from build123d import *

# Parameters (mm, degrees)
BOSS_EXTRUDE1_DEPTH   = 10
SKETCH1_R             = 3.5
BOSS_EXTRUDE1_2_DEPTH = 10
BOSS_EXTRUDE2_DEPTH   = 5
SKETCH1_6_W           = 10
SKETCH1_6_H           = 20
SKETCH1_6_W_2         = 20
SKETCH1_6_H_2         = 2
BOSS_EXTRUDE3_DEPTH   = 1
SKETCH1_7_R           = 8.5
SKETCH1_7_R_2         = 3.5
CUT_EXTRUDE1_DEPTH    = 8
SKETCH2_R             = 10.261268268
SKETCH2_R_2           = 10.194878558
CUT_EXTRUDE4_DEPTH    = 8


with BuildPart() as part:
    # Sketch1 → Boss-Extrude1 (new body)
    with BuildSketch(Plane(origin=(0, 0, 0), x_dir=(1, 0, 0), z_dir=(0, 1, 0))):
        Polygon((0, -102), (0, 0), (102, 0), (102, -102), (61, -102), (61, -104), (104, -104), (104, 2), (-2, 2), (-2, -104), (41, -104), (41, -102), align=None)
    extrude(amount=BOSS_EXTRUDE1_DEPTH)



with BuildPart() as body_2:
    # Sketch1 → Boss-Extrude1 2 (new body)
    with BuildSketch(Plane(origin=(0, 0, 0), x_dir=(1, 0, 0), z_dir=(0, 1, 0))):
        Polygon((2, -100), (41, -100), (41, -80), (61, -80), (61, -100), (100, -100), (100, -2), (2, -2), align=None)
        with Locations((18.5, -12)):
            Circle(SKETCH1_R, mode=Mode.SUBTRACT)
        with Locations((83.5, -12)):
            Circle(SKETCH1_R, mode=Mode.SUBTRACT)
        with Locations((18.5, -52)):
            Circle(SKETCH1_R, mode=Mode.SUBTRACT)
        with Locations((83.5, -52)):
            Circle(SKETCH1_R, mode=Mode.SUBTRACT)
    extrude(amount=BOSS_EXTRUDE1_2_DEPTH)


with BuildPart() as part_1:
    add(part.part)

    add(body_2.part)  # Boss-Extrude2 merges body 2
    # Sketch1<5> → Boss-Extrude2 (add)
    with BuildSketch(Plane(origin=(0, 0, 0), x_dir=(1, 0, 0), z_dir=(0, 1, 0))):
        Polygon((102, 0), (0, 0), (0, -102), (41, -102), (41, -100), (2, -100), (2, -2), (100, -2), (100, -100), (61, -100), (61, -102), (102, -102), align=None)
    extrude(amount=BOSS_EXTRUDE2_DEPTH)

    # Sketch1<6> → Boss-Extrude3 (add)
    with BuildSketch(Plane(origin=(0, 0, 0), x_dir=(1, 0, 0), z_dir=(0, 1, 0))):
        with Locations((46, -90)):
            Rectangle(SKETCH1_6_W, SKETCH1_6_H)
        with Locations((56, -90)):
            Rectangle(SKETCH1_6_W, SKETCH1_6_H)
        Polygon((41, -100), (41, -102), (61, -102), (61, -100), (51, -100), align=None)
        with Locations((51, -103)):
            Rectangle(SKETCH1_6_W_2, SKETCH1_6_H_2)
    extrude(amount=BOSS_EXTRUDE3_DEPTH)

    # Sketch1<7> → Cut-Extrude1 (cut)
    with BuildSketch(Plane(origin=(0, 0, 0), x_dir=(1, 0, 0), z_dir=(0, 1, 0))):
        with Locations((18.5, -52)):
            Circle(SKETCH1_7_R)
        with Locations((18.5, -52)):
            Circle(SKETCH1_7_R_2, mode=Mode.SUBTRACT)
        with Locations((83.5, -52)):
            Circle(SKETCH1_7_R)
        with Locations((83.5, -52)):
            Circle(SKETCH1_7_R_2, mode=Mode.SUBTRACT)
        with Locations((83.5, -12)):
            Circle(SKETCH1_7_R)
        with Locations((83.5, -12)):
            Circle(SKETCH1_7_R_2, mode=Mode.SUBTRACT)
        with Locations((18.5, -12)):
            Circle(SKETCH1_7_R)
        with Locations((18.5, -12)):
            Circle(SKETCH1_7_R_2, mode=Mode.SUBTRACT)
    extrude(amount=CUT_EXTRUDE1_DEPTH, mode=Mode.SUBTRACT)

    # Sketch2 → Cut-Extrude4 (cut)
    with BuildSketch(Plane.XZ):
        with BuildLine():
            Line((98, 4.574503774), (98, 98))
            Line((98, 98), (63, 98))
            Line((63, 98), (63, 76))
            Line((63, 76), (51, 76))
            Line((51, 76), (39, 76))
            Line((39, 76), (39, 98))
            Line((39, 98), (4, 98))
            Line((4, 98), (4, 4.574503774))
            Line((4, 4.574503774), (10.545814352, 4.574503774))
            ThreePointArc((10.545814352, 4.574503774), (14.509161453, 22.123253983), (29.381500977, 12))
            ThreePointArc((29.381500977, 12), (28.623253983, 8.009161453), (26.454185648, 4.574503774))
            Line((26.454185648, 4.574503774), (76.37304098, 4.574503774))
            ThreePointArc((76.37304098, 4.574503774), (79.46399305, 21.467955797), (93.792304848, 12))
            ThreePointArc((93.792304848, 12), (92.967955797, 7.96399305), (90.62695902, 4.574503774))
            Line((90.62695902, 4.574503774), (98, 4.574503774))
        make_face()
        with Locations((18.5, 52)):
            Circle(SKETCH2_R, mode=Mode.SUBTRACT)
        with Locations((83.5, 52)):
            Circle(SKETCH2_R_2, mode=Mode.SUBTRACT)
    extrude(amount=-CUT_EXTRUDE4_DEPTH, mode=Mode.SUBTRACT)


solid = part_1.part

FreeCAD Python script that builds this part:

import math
import FreeCAD as App
import Part
import Sketcher

V = App.Vector


def add_polygon(sketch, points):
    """Adds a closed chain of lines whose ends are joined by coincident constraints."""
    first, n = sketch.GeometryCount, len(points)
    for a, b in zip(points, points[1:] + points[:1]):
        sketch.addGeometry(Part.LineSegment(App.Vector(*a, 0), App.Vector(*b, 0)), False)
    for i in range(n):
        sketch.addConstraint(Sketcher.Constraint("Coincident", first + i, 2, first + (i + 1) % n, 1))

doc = App.newDocument("Part")
params = doc.addObject("Spreadsheet::Sheet", "Params")
for row, (alias, value) in enumerate([
    ("sketch1_width", "102 mm"),
    ("sketch1_width2", "41 mm"),
    ("sketch1_width3", "43 mm"),
    ("sketch1_height", "2 mm"),
    ("pad1_length", "10 mm"),
    ("sketch2_diameter", "7 mm"),
    ("sketch2_width", "39 mm"),
    ("sketch2_width2", "20 mm"),
    ("pad2_length", "10 mm"),
    ("sketch3_width", "102 mm"),
    ("sketch3_width2", "41 mm"),
    ("sketch3_width3", "39 mm"),
    ("sketch3_height", "2 mm"),
    ("pad3_length", "5 mm"),
    ("sketch4_width", "20 mm"),
    ("sketch4_height", "24 mm"),
    ("pad4_length", "1 mm"),
    ("sketch5_diameter", "17 mm"),
    ("sketch5_diameter2", "7 mm"),
    ("pocket1_length", "8 mm"),
    ("sketch6_width", "35 mm"),
    ("sketch6_width2", "24 mm"),
    ("sketch6_height", "22 mm"),
    ("pocket2_length", "8 mm"),
], start=1):
    params.set(f"A{row}", alias)
    params.set(f"B{row}", "=" + value)
    params.setAlias(f"B{row}", alias)

body = doc.addObject("PartDesign::Body", "Body")

sketch1 = body.newObject("Sketcher::SketchObject", "Sketch")
sketch1.AttachmentSupport = (doc.getObject("XZ_Plane"), [""])
sketch1.MapMode = "FlatFace"
add_polygon(sketch1, [(0, 102), (0, 0), (102, 0), (102, 102), (61, 102), (61, 104), (104, 104), (104, -2), (-2, -2), (-2, 104), (41, 104), (41, 102)])
sketch1.addConstraint([
    Sketcher.Constraint("Vertical", 0),
    Sketcher.Constraint("Horizontal", 1),
    Sketcher.Constraint("Vertical", 2),
    Sketcher.Constraint("Horizontal", 3),
    Sketcher.Constraint("Vertical", 4),
    Sketcher.Constraint("Horizontal", 5),
    Sketcher.Constraint("Vertical", 6),
    Sketcher.Constraint("Horizontal", 7),
    Sketcher.Constraint("Vertical", 8),
    Sketcher.Constraint("Horizontal", 9),
    Sketcher.Constraint("Vertical", 10),
    Sketcher.Constraint("Horizontal", 11),
    Sketcher.Constraint("Coincident", 0, 2, -1, 1),
    Sketcher.Constraint("Horizontal", 5, 2, 8, 2),
    Sketcher.Constraint("Horizontal", 3, 2, 10, 2),
    Sketcher.Constraint("Equal", 5, 9),
    Sketcher.Constraint("Equal", 3, 11),
    Sketcher.Constraint("Equal", 1, 0),
    Sketcher.Constraint("Equal", 7, 6),
    Sketcher.Constraint("DistanceX", 1, 1, 1, 2, 102.0),
    Sketcher.Constraint("DistanceX", 3, 2, 3, 1, 41.0),
    Sketcher.Constraint("DistanceX", 5, 1, 5, 2, 43.0),
    Sketcher.Constraint("DistanceY", 4, 1, 4, 2, 2.0),
])
sketch1.setExpression("Constraints[31]", "Params.sketch1_width")
sketch1.setExpression("Constraints[32]", "Params.sketch1_width2")
sketch1.setExpression("Constraints[33]", "Params.sketch1_width3")
sketch1.setExpression("Constraints[34]", "Params.sketch1_height")
pad1 = body.newObject("PartDesign::Pad", "Pad")
pad1.Profile = sketch1
pad1.setExpression("Length", "Params.pad1_length")
pad1.Reversed = True
body2 = doc.addObject("PartDesign::Body", "Body001")

sketch2 = body2.newObject("Sketcher::SketchObject", "Sketch001")
sketch2.AttachmentSupport = (doc.getObject("XZ_Plane001"), [""])
sketch2.MapMode = "FlatFace"
add_polygon(sketch2, [(2, 100), (41, 100), (41, 80), (61, 80), (61, 100), (100, 100), (100, 2), (2, 2)])
sketch2.addGeometry(Part.Circle(V(18.5, 52, 0), V(0, 0, 1), 3.5), False)
sketch2.addGeometry(Part.Circle(V(83.5, 52, 0), V(0, 0, 1), 3.5), False)
sketch2.addGeometry(Part.Circle(V(18.5, 12, 0), V(0, 0, 1), 3.5), False)
sketch2.addGeometry(Part.Circle(V(83.5, 12, 0), V(0, 0, 1), 3.5), False)
sketch2.addConstraint([
    Sketcher.Constraint("Horizontal", 0),
    Sketcher.Constraint("Vertical", 1),
    Sketcher.Constraint("Horizontal", 2),
    Sketcher.Constraint("Vertical", 3),
    Sketcher.Constraint("Horizontal", 4),
    Sketcher.Constraint("Vertical", 5),
    Sketcher.Constraint("Horizontal", 6),
    Sketcher.Constraint("Vertical", 7),
    Sketcher.Constraint("Equal", 8, 9),
    Sketcher.Constraint("Equal", 9, 10),
    Sketcher.Constraint("Equal", 10, 11),
    Sketcher.Constraint("Horizontal", 8, 3, 9, 3),
    Sketcher.Constraint("Horizontal", 10, 3, 11, 3),
    Sketcher.Constraint("Horizontal", 0, 2, 3, 2),
    Sketcher.Constraint("Vertical", 8, 3, 10, 3),
    Sketcher.Constraint("Vertical", 9, 3, 11, 3),
    Sketcher.Constraint("Equal", 0, 4),
    Sketcher.Constraint("Equal", 2, 1),
    Sketcher.Constraint("Equal", 6, 5),
    Sketcher.Constraint("Diameter", 8, 7.0),
    Sketcher.Constraint("DistanceX", 0, 1, 0, 2, 39.0),
    Sketcher.Constraint("DistanceX", 2, 1, 2, 2, 20.0),
    Sketcher.Constraint("DistanceY", -1, 1, 8, 3, 52.0),
    Sketcher.Constraint("DistanceY", -1, 1, 10, 3, 12.0),
    Sketcher.Constraint("DistanceX", -1, 1, 0, 2, 41.0),
    Sketcher.Constraint("DistanceY", -1, 1, 0, 2, 100.0),
    Sketcher.Constraint("DistanceX", 8, 3, 9, 3, 65.0),
    Sketcher.Constraint("DistanceX", -1, 1, 8, 3, 18.5),
])
sketch2.setExpression("Constraints[27]", "Params.sketch2_diameter")
sketch2.setExpression("Constraints[28]", "Params.sketch2_width")
sketch2.setExpression("Constraints[29]", "Params.sketch2_width2")
pad2 = body2.newObject("PartDesign::Pad", "Pad001")
pad2.Profile = sketch2
pad2.setExpression("Length", "Params.pad2_length")
pad2.Reversed = True
body.AllowCompound = True
doc.recompute()

boolean = body.newObject("PartDesign::Boolean", "Boolean")
boolean.Type = "Fuse"
boolean.addObjects([body2])

sketch3 = body.newObject("Sketcher::SketchObject", "Sketch002")
sketch3.AttachmentSupport = (doc.getObject("XZ_Plane"), [""])
sketch3.MapMode = "FlatFace"
add_polygon(sketch3, [(102, 0), (0, 0), (0, 102), (41, 102), (41, 100), (2, 100), (2, 2), (100, 2), (100, 100), (61, 100), (61, 102), (102, 102)])
sketch3.addConstraint([
    Sketcher.Constraint("Horizontal", 0),
    Sketcher.Constraint("Vertical", 1),
    Sketcher.Constraint("Horizontal", 2),
    Sketcher.Constraint("Vertical", 3),
    Sketcher.Constraint("Horizontal", 4),
    Sketcher.Constraint("Vertical", 5),
    Sketcher.Constraint("Horizontal", 6),
    Sketcher.Constraint("Vertical", 7),
    Sketcher.Constraint("Horizontal", 8),
    Sketcher.Constraint("Vertical", 9),
    Sketcher.Constraint("Horizontal", 10),
    Sketcher.Constraint("Vertical", 11),
    Sketcher.Constraint("Coincident", 0, 2, -1, 1),
    Sketcher.Constraint("Horizontal", 4, 2, 7, 2),
    Sketcher.Constraint("Horizontal", 2, 2, 9, 2),
    Sketcher.Constraint("Equal", 4, 8),
    Sketcher.Constraint("Equal", 2, 10),
    Sketcher.Constraint("Equal", 0, 1),
    Sketcher.Constraint("Equal", 6, 5),
    Sketcher.Constraint("DistanceX", 0, 2, 0, 1, 102.0),
    Sketcher.Constraint("DistanceX", 2, 1, 2, 2, 41.0),
    Sketcher.Constraint("DistanceX", 4, 2, 4, 1, 39.0),
    Sketcher.Constraint("DistanceY", 3, 2, 3, 1, 2.0),
])
sketch3.setExpression("Constraints[31]", "Params.sketch3_width")
sketch3.setExpression("Constraints[32]", "Params.sketch3_width2")
sketch3.setExpression("Constraints[33]", "Params.sketch3_width3")
sketch3.setExpression("Constraints[34]", "Params.sketch3_height")
pad3 = body.newObject("PartDesign::Pad", "Pad002")
pad3.Profile = sketch3
pad3.setExpression("Length", "Params.pad3_length")
pad3.Reversed = True

sketch4 = body.newObject("Sketcher::SketchObject", "Sketch003")
sketch4.AttachmentSupport = (doc.getObject("XZ_Plane"), [""])
sketch4.MapMode = "FlatFace"
add_polygon(sketch4, [(41, 80), (41, 104), (61, 104), (61, 80)])
sketch4.addConstraint([
    Sketcher.Constraint("Vertical", 0),
    Sketcher.Constraint("Horizontal", 1),
    Sketcher.Constraint("Vertical", 2),
    Sketcher.Constraint("Horizontal", 3),
    Sketcher.Constraint("DistanceX", 1, 1, 1, 2, 20.0),
    Sketcher.Constraint("DistanceY", 0, 1, 0, 2, 24.0),
    Sketcher.Constraint("DistanceX", -1, 1, 0, 2, 41.0),
    Sketcher.Constraint("DistanceY", -1, 1, 0, 2, 104.0),
])
sketch4.setExpression("Constraints[8]", "Params.sketch4_width")
sketch4.setExpression("Constraints[9]", "Params.sketch4_height")
pad4 = body.newObject("PartDesign::Pad", "Pad003")
pad4.Profile = sketch4
pad4.setExpression("Length", "Params.pad4_length")
pad4.Reversed = True

sketch5 = body.newObject("Sketcher::SketchObject", "Sketch004")
sketch5.AttachmentSupport = (doc.getObject("XZ_Plane"), [""])
sketch5.MapMode = "FlatFace"
sketch5.addGeometry([
    Part.Circle(V(18.5, 52, 0), V(0, 0, 1), 8.5),
    Part.Circle(V(18.5, 52, 0), V(0, 0, 1), 3.5),
    Part.Circle(V(83.5, 52, 0), V(0, 0, 1), 8.5),
    Part.Circle(V(83.5, 52, 0), V(0, 0, 1), 3.5),
    Part.Circle(V(83.5, 12, 0), V(0, 0, 1), 8.5),
    Part.Circle(V(83.5, 12, 0), V(0, 0, 1), 3.5),
    Part.Circle(V(18.5, 12, 0), V(0, 0, 1), 8.5),
    Part.Circle(V(18.5, 12, 0), V(0, 0, 1), 3.5),
], False)
sketch5.addConstraint([
    Sketcher.Constraint("Coincident", 1, 3, 0, 3),
    Sketcher.Constraint("Coincident", 3, 3, 2, 3),
    Sketcher.Constraint("Coincident", 5, 3, 4, 3),
    Sketcher.Constraint("Coincident", 7, 3, 6, 3),
    Sketcher.Constraint("Equal", 0, 2),
    Sketcher.Constraint("Equal", 1, 3),
    Sketcher.Constraint("Equal", 2, 4),
    Sketcher.Constraint("Equal", 3, 5),
    Sketcher.Constraint("Equal", 4, 6),
    Sketcher.Constraint("Equal", 5, 7),
    Sketcher.Constraint("Horizontal", 1, 3, 2, 3),
    Sketcher.Constraint("Horizontal", 5, 3, 6, 3),
    Sketcher.Constraint("Vertical", 3, 3, 4, 3),
    Sketcher.Constraint("Vertical", 1, 3, 6, 3),
    Sketcher.Constraint("Diameter", 0, 17.0),
    Sketcher.Constraint("Diameter", 1, 7.0),
    Sketcher.Constraint("DistanceY", -1, 1, 0, 3, 52.0),
    Sketcher.Constraint("DistanceY", -1, 1, 4, 3, 12.0),
    Sketcher.Constraint("DistanceX", 0, 3, 2, 3, 65.0),
    Sketcher.Constraint("DistanceX", -1, 1, 0, 3, 18.5),
])
sketch5.setExpression("Constraints[14]", "Params.sketch5_diameter")
sketch5.setExpression("Constraints[15]", "Params.sketch5_diameter2")
pocket1 = body.newObject("PartDesign::Pocket", "Pocket")
pocket1.Profile = sketch5
pocket1.setExpression("Length", "Params.pocket1_length")

sketch6 = body.newObject("Sketcher::SketchObject", "Sketch005")
sketch6.AttachmentSupport = (doc.getObject("XZ_Plane"), [""])
sketch6.MapMode = "FlatFace"
sketch6.addGeometry([
    Part.LineSegment(V(98, 5, 0), V(98, 98, 0)),
    Part.LineSegment(V(98, 98, 0), V(63, 98, 0)),
    Part.LineSegment(V(63, 98, 0), V(63, 76, 0)),
    Part.LineSegment(V(63, 76, 0), V(39, 76, 0)),
    Part.LineSegment(V(39, 76, 0), V(39, 98, 0)),
    Part.LineSegment(V(39, 98, 0), V(4, 98, 0)),
    Part.LineSegment(V(4, 98, 0), V(4, 5, 0)),
    Part.LineSegment(V(4, 5, 0), V(11, 5, 0)),
    Part.ArcOfCircle(Part.Circle(V(18, 12, 0), V(0, 0, 1), 11), math.radians(0), math.radians(223)),
    Part.ArcOfCircle(Part.Circle(V(18, 12, 0), V(0, 0, 1), 11), math.radians(-43), math.radians(0)),
    Part.LineSegment(V(26, 5, 0), V(76, 5, 0)),
    Part.ArcOfCircle(Part.Circle(V(84, 12, 0), V(0, 0, 1), 10), math.radians(0), math.radians(226)),
    Part.ArcOfCircle(Part.Circle(V(83, 12, 0), V(0, 0, 1), 10), math.radians(-46), math.radians(0)),
    Part.LineSegment(V(91, 5, 0), V(98, 5, 0)),
    Part.Circle(V(18, 52, 0), V(0, 0, 1), 10),
    Part.Circle(V(84, 52, 0), V(0, 0, 1), 10),
], False)
sketch6.addConstraint([
    Sketcher.Constraint("Coincident", 0, 2, 1, 1),
    Sketcher.Constraint("Coincident", 1, 2, 2, 1),
    Sketcher.Constraint("Coincident", 2, 2, 3, 1),
    Sketcher.Constraint("Coincident", 3, 2, 4, 1),
    Sketcher.Constraint("Coincident", 4, 2, 5, 1),
    Sketcher.Constraint("Coincident", 5, 2, 6, 1),
    Sketcher.Constraint("Coincident", 6, 2, 7, 1),
    Sketcher.Constraint("Coincident", 7, 2, 8, 2),
    Sketcher.Constraint("Tangent", 8, 1, 9, 2),
    Sketcher.Constraint("Coincident", 9, 1, 10, 1),
    Sketcher.Constraint("Coincident", 10, 2, 11, 2),
    Sketcher.Constraint("Tangent", 11, 1, 12, 2),
    Sketcher.Constraint("Coincident", 12, 1, 13, 1),
    Sketcher.Constraint("Coincident", 13, 2, 0, 1),
    Sketcher.Constraint("Vertical", 0),
    Sketcher.Constraint("Horizontal", 1),
    Sketcher.Constraint("Vertical", 2),
    Sketcher.Constraint("Horizontal", 3),
    Sketcher.Constraint("Vertical", 4),
    Sketcher.Constraint("Horizontal", 5),
    Sketcher.Constraint("Vertical", 6),
    Sketcher.Constraint("Horizontal", 7),
    Sketcher.Constraint("Horizontal", 10),
    Sketcher.Constraint("Horizontal", 13),
    Sketcher.Constraint("Equal", 8, 9),
    Sketcher.Constraint("Equal", 11, 12),
    Sketcher.Constraint("Horizontal", 9, 3, 11, 3),
    Sketcher.Constraint("Horizontal", 14, 3, 15, 3),
    Sketcher.Constraint("Horizontal", 1, 2, 4, 2),
    Sketcher.Constraint("Horizontal", 12, 3, 8, 1),
    Sketcher.Constraint("Horizontal", 7, 2, 9, 1),
    Sketcher.Constraint("Horizontal", 8, 1, 11, 1),
    Sketcher.Constraint("Horizontal", 10, 2, 12, 1),
    Sketcher.Constraint("Vertical", 9, 3, 14, 3),
    Sketcher.Constraint("Vertical", 12, 3, 15, 3),
    Sketcher.Constraint("Equal", 1, 5),
    Sketcher.Constraint("DistanceX", 1, 2, 1, 1, 35.0),
    Sketcher.Constraint("DistanceX", 3, 2, 3, 1, 24.0),
    Sketcher.Constraint("DistanceY", 2, 2, 2, 1, 22.0),
    Sketcher.Constraint("DistanceY", -1, 1, 8, 3, 12.0),
    Sketcher.Constraint("DistanceY", -1, 1, 14, 3, 52.0),
    Sketcher.Constraint("DistanceX", -1, 1, 0, 2, 98.0),
    Sketcher.Constraint("DistanceY", -1, 1, 0, 2, 98.0),
    Sketcher.Constraint("DistanceX", 8, 3, 11, 3, 65.0),
    Sketcher.Constraint("DistanceX", -1, 1, 8, 3, 18.5),
    Sketcher.Constraint("Radius", 8, 10.881501),
    Sketcher.Constraint("Diameter", 14, 20.522537),
    Sketcher.Constraint("Diameter", 15, 20.389757),
    Sketcher.Constraint("Radius", 11, 10.292305),
    Sketcher.Constraint("DistanceX", 13, 1, 13, 2, 7.373041),
])
sketch6.setExpression("Constraints[36]", "Params.sketch6_width")
sketch6.setExpression("Constraints[37]", "Params.sketch6_width2")
sketch6.setExpression("Constraints[38]", "Params.sketch6_height")
pocket2 = body.newObject("PartDesign::Pocket", "Pocket001")
pocket2.Profile = sketch6
pocket2.setExpression("Length", "Params.pocket2_length")

doc.recompute()
